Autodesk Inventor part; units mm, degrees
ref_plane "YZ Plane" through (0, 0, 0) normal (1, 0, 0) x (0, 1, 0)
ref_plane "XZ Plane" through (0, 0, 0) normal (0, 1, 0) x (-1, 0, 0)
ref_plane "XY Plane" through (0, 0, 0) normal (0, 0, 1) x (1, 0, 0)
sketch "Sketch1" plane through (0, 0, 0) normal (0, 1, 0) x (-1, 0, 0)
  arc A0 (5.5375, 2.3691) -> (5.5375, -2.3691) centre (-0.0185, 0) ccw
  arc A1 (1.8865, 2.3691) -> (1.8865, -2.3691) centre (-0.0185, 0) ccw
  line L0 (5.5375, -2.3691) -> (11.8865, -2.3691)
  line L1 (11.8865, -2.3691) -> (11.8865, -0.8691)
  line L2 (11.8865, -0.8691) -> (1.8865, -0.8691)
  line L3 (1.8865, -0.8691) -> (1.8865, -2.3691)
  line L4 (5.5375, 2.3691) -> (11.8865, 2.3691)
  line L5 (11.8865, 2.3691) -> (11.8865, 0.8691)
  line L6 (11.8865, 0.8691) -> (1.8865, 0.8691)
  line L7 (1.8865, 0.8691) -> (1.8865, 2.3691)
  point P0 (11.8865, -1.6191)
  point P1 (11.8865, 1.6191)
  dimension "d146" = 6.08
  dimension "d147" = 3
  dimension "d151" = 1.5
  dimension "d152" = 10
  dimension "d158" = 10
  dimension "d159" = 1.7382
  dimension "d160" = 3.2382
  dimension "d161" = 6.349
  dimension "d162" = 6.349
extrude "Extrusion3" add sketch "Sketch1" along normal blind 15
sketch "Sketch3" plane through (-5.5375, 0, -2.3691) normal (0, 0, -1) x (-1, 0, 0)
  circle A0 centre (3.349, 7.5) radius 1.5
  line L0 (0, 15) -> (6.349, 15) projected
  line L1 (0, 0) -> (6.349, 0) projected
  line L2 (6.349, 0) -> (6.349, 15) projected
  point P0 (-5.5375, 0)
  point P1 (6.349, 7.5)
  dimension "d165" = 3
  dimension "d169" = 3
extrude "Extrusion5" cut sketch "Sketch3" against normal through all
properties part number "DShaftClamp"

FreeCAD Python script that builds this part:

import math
import FreeCAD as App
import Part
import Sketcher
Q = App.Units.Quantity

doc = App.newDocument("Part")
body = doc.addObject("PartDesign::Body", "Body")

sketch1 = body.newObject("Sketcher::SketchObject", "Sketch")
sketch1.AttachmentSupport = (doc.getObject("XZ_Plane"), [""])
sketch1.MapMode = "FlatFace"
sketch1.addGeometry(Part.LineSegment(App.Vector(-11.8865, 2.3691, 0), App.Vector(-5.5375, 2.3691, 0)), False)
sketch1.addGeometry(Part.ArcOfCircle(Part.Circle(App.Vector(0.0185, 0, 0), App.Vector(0, 0, 1), 6.040014), math.radians(-156.906412), math.radians(156.906412)), False)
sketch1.addGeometry(Part.LineSegment(App.Vector(-5.5375, -2.3691, 0), App.Vector(-11.8865, -2.3691, 0)), False)
sketch1.addGeometry(Part.LineSegment(App.Vector(-11.8865, -2.3691, 0), App.Vector(-11.8865, -0.8691, 0)), False)
sketch1.addGeometry(Part.LineSegment(App.Vector(-11.8865, -0.8691, 0), App.Vector(-1.8865, -0.8691, 0)), False)
sketch1.addGeometry(Part.LineSegment(App.Vector(-1.8865, -0.8691, 0), App.Vector(-1.8865, -2.3691, 0)), False)
sketch1.addGeometry(Part.ArcOfCircle(Part.Circle(App.Vector(0.0185, 0, 0), App.Vector(0, 0, 1), 3.04001), math.radians(-128.80286), math.radians(128.80286)), False)
sketch1.addGeometry(Part.LineSegment(App.Vector(-1.8865, 2.3691, 0), App.Vector(-1.8865, 0.8691, 0)), False)
sketch1.addGeometry(Part.LineSegment(App.Vector(-1.8865, 0.8691, 0), App.Vector(-11.8865, 0.8691, 0)), False)
sketch1.addGeometry(Part.LineSegment(App.Vector(-11.8865, 0.8691, 0), App.Vector(-11.8865, 2.3691, 0)), False)
sketch1.addConstraint(Sketcher.Constraint("Coincident", 0, 2, 1, 2))
sketch1.addConstraint(Sketcher.Constraint("Coincident", 1, 1, 2, 1))
sketch1.addConstraint(Sketcher.Constraint("Coincident", 2, 2, 3, 1))
sketch1.addConstraint(Sketcher.Constraint("Coincident", 3, 2, 4, 1))
sketch1.addConstraint(Sketcher.Constraint("Coincident", 4, 2, 5, 1))
sketch1.addConstraint(Sketcher.Constraint("Coincident", 5, 2, 6, 1))
sketch1.addConstraint(Sketcher.Constraint("Coincident", 6, 2, 7, 1))
sketch1.addConstraint(Sketcher.Constraint("Coincident", 7, 2, 8, 1))
sketch1.addConstraint(Sketcher.Constraint("Coincident", 8, 2, 9, 1))
sketch1.addConstraint(Sketcher.Constraint("Coincident", 9, 2, 0, 1))
sketch1.addConstraint(Sketcher.Constraint("Horizontal", 0))
sketch1.addConstraint(Sketcher.Constraint("Horizontal", 2))
sketch1.addConstraint(Sketcher.Constraint("Vertical", 3))
sketch1.addConstraint(Sketcher.Constraint("Horizontal", 4))
sketch1.addConstraint(Sketcher.Constraint("Vertical", 5))
sketch1.addConstraint(Sketcher.Constraint("Vertical", 7))
sketch1.addConstraint(Sketcher.Constraint("Horizontal", 8))
sketch1.addConstraint(Sketcher.Constraint("Vertical", 9))
sketch1.addConstraint(Sketcher.Constraint("Coincident", 6, 3, 1, 3))
sketch1.addConstraint(Sketcher.Constraint("Symmetric", 0, 2, 1, 1, -1))
sketch1.addConstraint(Sketcher.Constraint("Symmetric", 4, 2, 7, 2, -1))
sketch1.addConstraint(Sketcher.Constraint("Horizontal", 2, 2, 5, 2))
sketch1.addConstraint(Sketcher.Constraint("Vertical", 3, 2, 8, 2))
sketch1.addConstraint(Sketcher.Constraint("DistanceX", 4, 1, 4, 2, Q("10 mm")))
sketch1.addConstraint(Sketcher.Constraint("Radius", 6, Q("3.04 mm")))
sketch1.addConstraint(Sketcher.Constraint("DistanceY", 3, 1, 3, 2, Q("1.5 mm")))
sketch1.addConstraint(Sketcher.Constraint("DistanceX", 0, 1, 0, 2, Q("6.349 mm")))
sketch1.addConstraint(Sketcher.Constraint("Radius", 1, Q("6.04 mm")))
sketch1.addConstraint(Sketcher.Constraint("DistanceX", -1, 1, 1, 3, Q("0.0185 mm")))
pad1 = body.newObject("PartDesign::Pad", "Pad")
pad1.Profile = sketch1
pad1.Length = 15
pad1.Reversed = True

sketch2 = body.newObject("Sketcher::SketchObject", "Sketch001")
sketch2.AttachmentSupport = (doc.getObject("XY_Plane"), [""])
sketch2.MapMode = "FlatFace"
sketch2.AttachmentOffset = App.Placement(App.Vector(0, 0, -2.3691), App.Rotation())
sketch2.addGeometry(Part.Circle(App.Vector(-8.8865, 7.5, 0), App.Vector(0, 0, 1), 1.5), False)
sketch2.addConstraint(Sketcher.Constraint("Diameter", 0, Q("3 mm")))
sketch2.addConstraint(Sketcher.Constraint("DistanceY", -1, 1, 0, 3, Q("7.5 mm")))
sketch2.addConstraint(Sketcher.Constraint("DistanceX", 0, 3, -1, 1, Q("8.8865 mm")))
pocket1 = body.newObject("PartDesign::Pocket", "Pocket")
pocket1.Profile = sketch2
pocket1.Type = "ThroughAll"
pocket1.Reversed = True

doc.recompute()
